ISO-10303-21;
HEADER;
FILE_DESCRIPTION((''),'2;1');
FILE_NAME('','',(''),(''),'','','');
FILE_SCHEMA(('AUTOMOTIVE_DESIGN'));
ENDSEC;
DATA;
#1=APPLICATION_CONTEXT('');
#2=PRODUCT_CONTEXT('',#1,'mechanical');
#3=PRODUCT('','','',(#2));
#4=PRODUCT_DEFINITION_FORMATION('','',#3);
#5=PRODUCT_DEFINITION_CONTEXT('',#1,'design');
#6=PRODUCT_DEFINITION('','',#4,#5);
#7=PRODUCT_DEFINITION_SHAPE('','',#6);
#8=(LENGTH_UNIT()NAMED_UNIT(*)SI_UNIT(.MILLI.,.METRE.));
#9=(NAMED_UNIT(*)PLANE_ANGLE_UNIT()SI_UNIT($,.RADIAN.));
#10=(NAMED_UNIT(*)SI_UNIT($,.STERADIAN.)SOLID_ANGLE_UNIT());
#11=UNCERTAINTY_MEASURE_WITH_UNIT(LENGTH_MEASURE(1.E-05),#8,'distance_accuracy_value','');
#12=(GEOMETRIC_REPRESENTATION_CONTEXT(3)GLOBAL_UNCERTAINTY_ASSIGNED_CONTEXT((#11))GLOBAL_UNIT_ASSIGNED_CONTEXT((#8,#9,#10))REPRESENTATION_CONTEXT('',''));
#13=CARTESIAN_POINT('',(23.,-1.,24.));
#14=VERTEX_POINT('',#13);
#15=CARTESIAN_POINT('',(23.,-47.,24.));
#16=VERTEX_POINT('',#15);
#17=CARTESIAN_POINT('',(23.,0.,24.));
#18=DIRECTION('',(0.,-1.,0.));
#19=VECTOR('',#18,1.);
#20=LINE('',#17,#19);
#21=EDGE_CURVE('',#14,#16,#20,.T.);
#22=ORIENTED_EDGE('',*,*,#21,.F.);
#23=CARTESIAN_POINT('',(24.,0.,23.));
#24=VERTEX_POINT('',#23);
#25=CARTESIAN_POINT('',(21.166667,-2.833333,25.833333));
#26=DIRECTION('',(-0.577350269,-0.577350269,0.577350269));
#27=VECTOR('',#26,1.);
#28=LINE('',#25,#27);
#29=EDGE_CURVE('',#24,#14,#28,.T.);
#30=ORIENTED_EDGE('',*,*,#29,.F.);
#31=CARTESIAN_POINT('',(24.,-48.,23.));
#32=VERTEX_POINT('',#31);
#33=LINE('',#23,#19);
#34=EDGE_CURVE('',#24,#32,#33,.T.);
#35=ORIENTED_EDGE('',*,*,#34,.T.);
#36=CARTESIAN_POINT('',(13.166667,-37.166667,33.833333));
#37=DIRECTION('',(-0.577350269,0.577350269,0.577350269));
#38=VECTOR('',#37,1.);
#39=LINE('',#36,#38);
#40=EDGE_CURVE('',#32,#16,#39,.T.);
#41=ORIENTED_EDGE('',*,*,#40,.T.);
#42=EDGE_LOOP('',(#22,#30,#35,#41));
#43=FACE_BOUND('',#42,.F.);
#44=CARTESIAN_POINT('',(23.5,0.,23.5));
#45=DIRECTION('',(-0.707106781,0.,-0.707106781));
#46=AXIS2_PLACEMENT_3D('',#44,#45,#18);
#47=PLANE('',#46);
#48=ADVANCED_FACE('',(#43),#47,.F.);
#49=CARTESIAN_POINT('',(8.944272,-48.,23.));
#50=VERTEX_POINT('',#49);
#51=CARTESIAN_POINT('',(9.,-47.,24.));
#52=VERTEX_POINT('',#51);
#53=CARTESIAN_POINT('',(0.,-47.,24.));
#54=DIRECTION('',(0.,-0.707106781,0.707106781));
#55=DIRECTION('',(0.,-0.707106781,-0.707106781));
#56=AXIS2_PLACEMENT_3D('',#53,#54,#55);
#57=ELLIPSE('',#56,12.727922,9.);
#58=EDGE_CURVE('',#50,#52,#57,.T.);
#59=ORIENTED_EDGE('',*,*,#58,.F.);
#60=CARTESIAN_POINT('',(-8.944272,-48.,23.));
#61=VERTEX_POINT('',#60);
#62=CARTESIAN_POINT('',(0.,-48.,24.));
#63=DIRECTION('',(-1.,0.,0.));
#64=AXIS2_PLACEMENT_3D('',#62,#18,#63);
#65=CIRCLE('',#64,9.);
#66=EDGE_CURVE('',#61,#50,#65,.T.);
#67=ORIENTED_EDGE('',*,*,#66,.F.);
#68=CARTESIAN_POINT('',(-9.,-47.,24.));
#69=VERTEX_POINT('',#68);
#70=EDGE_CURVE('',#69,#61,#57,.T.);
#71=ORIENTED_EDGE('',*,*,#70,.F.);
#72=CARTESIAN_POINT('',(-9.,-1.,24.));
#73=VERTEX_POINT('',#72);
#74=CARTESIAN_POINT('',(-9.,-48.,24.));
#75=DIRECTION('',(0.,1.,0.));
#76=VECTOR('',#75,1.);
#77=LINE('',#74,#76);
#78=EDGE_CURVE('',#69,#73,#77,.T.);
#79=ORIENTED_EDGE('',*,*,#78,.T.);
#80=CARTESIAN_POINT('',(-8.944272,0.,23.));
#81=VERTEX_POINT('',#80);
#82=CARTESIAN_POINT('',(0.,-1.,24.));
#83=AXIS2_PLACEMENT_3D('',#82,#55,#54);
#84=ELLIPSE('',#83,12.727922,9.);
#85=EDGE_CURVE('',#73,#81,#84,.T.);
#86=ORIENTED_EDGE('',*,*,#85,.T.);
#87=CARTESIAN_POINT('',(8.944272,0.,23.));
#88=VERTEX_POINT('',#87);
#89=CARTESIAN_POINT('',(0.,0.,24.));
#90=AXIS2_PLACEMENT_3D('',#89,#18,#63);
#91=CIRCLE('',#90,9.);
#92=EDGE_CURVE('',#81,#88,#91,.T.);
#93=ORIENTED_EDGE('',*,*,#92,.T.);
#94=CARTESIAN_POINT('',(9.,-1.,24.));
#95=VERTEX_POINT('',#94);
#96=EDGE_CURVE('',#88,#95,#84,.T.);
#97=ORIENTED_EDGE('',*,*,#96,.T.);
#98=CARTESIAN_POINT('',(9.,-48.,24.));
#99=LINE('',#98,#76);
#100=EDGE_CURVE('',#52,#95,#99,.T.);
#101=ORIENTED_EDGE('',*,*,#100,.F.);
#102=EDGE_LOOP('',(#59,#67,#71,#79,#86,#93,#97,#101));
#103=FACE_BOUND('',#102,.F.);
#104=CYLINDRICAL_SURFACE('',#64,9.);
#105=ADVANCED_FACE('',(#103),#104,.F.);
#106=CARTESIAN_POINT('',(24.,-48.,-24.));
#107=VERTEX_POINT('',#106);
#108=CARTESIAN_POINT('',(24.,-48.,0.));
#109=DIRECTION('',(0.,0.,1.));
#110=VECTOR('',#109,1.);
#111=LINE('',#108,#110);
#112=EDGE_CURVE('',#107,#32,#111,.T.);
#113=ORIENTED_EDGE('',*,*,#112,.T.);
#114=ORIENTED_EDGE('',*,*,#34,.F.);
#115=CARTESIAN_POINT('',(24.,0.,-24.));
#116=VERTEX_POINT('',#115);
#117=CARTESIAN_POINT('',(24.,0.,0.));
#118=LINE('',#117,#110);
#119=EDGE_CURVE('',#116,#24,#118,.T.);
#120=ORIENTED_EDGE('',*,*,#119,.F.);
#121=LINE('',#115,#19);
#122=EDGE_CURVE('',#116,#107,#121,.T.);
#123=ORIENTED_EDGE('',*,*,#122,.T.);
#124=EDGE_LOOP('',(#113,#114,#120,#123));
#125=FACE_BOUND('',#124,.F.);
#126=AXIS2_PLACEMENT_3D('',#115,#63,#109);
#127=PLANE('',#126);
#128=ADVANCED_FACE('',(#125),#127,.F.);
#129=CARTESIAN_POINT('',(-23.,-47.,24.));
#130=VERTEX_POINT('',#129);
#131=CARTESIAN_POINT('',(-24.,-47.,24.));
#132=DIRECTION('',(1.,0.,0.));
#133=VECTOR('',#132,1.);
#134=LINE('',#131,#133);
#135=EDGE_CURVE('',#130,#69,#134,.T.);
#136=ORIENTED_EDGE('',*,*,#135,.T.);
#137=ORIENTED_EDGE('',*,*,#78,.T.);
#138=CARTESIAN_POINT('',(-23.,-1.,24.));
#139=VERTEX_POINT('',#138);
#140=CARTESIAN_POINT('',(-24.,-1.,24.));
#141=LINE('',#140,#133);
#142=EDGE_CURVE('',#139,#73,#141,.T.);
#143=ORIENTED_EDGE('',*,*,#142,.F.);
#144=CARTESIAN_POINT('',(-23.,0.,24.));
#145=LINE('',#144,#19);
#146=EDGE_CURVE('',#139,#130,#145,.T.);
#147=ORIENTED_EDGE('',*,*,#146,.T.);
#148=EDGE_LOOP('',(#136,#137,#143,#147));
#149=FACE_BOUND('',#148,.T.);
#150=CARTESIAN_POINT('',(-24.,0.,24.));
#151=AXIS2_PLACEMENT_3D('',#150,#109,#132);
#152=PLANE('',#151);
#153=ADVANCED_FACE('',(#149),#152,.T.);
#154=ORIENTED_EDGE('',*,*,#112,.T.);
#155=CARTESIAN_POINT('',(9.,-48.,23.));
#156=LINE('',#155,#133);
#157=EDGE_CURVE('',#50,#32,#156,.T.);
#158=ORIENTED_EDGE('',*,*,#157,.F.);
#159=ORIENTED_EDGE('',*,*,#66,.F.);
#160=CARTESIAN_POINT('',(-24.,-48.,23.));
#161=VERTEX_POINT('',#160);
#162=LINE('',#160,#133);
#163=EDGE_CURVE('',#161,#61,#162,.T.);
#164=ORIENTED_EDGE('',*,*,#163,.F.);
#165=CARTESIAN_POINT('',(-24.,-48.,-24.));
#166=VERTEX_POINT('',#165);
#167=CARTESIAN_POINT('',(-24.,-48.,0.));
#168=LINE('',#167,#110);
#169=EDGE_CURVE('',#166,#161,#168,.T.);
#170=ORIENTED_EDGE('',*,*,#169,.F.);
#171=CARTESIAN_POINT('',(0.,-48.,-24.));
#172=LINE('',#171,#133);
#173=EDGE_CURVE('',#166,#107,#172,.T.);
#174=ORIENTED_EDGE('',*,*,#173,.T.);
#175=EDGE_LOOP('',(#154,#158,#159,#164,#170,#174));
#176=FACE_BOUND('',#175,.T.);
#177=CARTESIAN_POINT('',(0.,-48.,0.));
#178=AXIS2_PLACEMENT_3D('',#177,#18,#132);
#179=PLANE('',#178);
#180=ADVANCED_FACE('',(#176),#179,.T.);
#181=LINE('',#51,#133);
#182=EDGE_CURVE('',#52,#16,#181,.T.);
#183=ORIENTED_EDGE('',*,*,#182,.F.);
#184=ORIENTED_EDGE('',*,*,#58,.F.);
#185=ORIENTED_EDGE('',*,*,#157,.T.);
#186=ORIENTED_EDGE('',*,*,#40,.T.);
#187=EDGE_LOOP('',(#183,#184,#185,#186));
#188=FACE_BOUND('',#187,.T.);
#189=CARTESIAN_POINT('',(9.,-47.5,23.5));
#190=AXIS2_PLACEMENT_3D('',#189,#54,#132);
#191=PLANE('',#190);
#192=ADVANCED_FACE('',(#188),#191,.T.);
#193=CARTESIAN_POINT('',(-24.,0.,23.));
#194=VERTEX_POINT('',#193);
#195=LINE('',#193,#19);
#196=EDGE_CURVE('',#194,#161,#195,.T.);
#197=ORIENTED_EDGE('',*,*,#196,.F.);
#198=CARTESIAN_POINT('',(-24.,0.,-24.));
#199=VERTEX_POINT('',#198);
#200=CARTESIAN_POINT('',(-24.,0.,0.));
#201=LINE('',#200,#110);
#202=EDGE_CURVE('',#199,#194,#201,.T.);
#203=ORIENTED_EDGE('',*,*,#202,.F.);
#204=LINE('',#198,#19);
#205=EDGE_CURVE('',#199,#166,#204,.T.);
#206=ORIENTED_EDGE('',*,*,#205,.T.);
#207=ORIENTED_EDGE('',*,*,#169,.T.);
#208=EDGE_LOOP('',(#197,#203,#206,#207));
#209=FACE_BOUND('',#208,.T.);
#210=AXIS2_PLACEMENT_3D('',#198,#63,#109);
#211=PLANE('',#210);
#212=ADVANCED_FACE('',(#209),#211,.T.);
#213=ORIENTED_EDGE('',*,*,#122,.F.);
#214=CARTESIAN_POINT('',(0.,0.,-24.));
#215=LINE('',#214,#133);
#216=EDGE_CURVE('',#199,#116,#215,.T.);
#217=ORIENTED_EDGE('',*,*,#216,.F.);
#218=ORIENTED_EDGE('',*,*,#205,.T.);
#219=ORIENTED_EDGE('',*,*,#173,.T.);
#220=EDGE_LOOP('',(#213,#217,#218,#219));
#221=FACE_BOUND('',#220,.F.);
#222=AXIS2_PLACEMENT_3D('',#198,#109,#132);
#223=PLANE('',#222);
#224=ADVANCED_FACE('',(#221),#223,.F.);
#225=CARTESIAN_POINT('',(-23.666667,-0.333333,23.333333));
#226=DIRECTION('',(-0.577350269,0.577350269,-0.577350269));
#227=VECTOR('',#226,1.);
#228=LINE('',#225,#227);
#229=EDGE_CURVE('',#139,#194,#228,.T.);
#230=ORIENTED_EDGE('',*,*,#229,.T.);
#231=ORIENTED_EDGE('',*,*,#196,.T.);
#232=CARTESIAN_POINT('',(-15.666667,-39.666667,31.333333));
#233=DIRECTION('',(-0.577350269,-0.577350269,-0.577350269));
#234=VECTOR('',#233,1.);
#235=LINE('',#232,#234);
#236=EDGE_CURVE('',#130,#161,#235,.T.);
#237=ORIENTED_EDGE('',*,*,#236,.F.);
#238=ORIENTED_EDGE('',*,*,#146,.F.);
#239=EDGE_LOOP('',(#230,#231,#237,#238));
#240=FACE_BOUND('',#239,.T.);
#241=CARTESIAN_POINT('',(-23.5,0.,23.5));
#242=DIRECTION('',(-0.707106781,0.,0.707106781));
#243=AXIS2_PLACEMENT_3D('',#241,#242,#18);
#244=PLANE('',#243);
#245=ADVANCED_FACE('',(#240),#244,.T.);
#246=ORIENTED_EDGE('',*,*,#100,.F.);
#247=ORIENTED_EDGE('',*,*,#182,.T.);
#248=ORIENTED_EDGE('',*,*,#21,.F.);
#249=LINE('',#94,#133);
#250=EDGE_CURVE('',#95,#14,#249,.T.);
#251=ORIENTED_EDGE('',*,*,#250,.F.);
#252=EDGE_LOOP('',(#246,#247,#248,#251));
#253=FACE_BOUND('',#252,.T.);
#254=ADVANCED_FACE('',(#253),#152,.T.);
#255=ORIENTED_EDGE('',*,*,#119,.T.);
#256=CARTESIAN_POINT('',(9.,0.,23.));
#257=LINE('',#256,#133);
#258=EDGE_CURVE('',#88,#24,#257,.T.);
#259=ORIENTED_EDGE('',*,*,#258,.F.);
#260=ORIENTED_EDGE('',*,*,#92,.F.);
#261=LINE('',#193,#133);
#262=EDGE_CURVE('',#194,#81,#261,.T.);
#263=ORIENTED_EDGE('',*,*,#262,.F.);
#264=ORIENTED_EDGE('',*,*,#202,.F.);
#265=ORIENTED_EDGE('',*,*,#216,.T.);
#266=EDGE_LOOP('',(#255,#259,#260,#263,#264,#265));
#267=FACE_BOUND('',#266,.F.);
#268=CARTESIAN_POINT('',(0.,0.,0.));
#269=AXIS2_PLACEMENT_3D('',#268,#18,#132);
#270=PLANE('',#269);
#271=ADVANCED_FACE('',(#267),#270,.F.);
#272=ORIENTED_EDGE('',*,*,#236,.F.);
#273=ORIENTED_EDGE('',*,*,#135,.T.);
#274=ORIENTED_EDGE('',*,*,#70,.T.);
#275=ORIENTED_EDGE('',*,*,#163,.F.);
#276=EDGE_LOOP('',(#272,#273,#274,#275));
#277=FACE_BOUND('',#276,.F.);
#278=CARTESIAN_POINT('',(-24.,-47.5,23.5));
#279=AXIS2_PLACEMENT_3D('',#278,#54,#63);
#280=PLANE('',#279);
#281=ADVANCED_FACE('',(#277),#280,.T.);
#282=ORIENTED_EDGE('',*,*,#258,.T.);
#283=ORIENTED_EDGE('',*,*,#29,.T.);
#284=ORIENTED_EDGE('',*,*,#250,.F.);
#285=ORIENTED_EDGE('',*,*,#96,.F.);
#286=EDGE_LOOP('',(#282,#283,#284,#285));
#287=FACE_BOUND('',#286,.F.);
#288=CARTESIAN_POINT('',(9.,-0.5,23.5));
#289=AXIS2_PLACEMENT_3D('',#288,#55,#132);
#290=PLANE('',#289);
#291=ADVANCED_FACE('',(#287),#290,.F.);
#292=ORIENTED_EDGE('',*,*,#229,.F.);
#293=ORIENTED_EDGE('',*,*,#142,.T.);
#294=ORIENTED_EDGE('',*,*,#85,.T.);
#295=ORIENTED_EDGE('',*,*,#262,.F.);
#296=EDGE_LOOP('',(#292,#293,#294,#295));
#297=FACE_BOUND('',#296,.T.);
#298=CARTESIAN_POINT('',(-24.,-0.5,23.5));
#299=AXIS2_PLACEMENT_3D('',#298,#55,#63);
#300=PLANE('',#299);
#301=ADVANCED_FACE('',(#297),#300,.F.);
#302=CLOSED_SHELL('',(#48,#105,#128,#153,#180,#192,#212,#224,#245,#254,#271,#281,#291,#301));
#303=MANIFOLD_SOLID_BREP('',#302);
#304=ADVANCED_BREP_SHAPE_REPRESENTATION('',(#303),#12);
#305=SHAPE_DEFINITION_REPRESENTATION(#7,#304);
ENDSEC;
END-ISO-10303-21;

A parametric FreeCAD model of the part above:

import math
import FreeCAD as App
import Part
import Sketcher


def edges_at(feature, points):
    """Names of the edges that pass closest to the given points."""
    edges = feature.Shape.Edges
    near = lambda p: min(range(len(edges)), key=lambda i: edges[i].distToShape(Part.Vertex(*p))[0])
    return sorted({f"Edge{near(p) + 1}" for p in points})


def add_polygon(sketch, points):
    """Adds a closed chain of lines whose ends are joined by coincident constraints."""
    first, n = sketch.GeometryCount, len(points)
    for a, b in zip(points, points[1:] + points[:1]):
        sketch.addGeometry(Part.LineSegment(App.Vector(*a, 0), App.Vector(*b, 0)), False)
    for i in range(n):
        sketch.addConstraint(Sketcher.Constraint("Coincident", first + i, 2, first + (i + 1) % n, 1))

doc = App.newDocument("Part")
body = doc.addObject("PartDesign::Body", "Body")

# Sketch on XZ plane
sketch1 = body.newObject("Sketcher::SketchObject", "Sketch")
sketch1.AttachmentSupport = (doc.getObject("XZ_Plane"), [""])
sketch1.MapMode = "FlatFace"
add_polygon(sketch1, [(-24, 24), (-24, -24), (24, -24), (24, 24)])  # lines 0-3
sketch1.addConstraint(Sketcher.Constraint("Vertical", 0))
sketch1.addConstraint(Sketcher.Constraint("Horizontal", 1))
sketch1.addConstraint(Sketcher.Constraint("Vertical", 2))
sketch1.addConstraint(Sketcher.Constraint("Horizontal", 3))
sketch1.addConstraint(Sketcher.Constraint("Symmetric", 0, 2, 2, 2, -1, 1))
sketch1.addConstraint(Sketcher.Constraint("Equal", 3, 0))
sketch1.addConstraint(Sketcher.Constraint("DistanceX", 1, 1, 1, 2, 48.0))
pad1 = body.newObject("PartDesign::Pad", "Pad")
pad1.Profile = sketch1
pad1.Length = 48

# Sketch on XZ plane
sketch2 = body.newObject("Sketcher::SketchObject", "Sketch001")
sketch2.AttachmentSupport = (doc.getObject("XZ_Plane"), [""])
sketch2.MapMode = "FlatFace"
sketch2.AttachmentOffset = App.Placement(App.Vector(0, 0, 48), App.Rotation())
sketch2.addGeometry(Part.ArcOfCircle(Part.Circle(App.Vector(0, 24, 0), App.Vector(0, 0, 1), 9), math.radians(180), math.radians(360)), False)
sketch2.addGeometry(Part.LineSegment(App.Vector(9, 24, 0), App.Vector(-9, 24, 0)), False)
sketch2.addConstraint(Sketcher.Constraint("Coincident", 0, 1, 1, 2))
sketch2.addConstraint(Sketcher.Constraint("Coincident", 1, 1, 0, 2))
sketch2.addConstraint(Sketcher.Constraint("Horizontal", 1))
sketch2.addConstraint(Sketcher.Constraint("PointOnObject", 0, 3, -2))
sketch2.addConstraint(Sketcher.Constraint("Radius", 0, 9.0))
sketch2.addConstraint(Sketcher.Constraint("DistanceY", -1, 1, 0, 3, 24.0))
sketch2.addConstraint(Sketcher.Constraint("DistanceY", -1, 1, 0, 1, 24.0))
pocket1 = body.newObject("PartDesign::Pocket", "Pocket")
pocket1.Profile = sketch2
pocket1.Length = 48
doc.recompute()

chamfer = body.newObject("PartDesign::Chamfer", "Chamfer")
chamfer.Base = (pocket1, edges_at(pocket1, [
    (16.5, -48, 24),
    (-16.5, -48, 24),
    (24, -24, 24),
    (16.5, 0, 24),
    (-16.5, 0, 24),
    (-24, -24, 24),
]))
chamfer.Size = 1

doc.recompute()
